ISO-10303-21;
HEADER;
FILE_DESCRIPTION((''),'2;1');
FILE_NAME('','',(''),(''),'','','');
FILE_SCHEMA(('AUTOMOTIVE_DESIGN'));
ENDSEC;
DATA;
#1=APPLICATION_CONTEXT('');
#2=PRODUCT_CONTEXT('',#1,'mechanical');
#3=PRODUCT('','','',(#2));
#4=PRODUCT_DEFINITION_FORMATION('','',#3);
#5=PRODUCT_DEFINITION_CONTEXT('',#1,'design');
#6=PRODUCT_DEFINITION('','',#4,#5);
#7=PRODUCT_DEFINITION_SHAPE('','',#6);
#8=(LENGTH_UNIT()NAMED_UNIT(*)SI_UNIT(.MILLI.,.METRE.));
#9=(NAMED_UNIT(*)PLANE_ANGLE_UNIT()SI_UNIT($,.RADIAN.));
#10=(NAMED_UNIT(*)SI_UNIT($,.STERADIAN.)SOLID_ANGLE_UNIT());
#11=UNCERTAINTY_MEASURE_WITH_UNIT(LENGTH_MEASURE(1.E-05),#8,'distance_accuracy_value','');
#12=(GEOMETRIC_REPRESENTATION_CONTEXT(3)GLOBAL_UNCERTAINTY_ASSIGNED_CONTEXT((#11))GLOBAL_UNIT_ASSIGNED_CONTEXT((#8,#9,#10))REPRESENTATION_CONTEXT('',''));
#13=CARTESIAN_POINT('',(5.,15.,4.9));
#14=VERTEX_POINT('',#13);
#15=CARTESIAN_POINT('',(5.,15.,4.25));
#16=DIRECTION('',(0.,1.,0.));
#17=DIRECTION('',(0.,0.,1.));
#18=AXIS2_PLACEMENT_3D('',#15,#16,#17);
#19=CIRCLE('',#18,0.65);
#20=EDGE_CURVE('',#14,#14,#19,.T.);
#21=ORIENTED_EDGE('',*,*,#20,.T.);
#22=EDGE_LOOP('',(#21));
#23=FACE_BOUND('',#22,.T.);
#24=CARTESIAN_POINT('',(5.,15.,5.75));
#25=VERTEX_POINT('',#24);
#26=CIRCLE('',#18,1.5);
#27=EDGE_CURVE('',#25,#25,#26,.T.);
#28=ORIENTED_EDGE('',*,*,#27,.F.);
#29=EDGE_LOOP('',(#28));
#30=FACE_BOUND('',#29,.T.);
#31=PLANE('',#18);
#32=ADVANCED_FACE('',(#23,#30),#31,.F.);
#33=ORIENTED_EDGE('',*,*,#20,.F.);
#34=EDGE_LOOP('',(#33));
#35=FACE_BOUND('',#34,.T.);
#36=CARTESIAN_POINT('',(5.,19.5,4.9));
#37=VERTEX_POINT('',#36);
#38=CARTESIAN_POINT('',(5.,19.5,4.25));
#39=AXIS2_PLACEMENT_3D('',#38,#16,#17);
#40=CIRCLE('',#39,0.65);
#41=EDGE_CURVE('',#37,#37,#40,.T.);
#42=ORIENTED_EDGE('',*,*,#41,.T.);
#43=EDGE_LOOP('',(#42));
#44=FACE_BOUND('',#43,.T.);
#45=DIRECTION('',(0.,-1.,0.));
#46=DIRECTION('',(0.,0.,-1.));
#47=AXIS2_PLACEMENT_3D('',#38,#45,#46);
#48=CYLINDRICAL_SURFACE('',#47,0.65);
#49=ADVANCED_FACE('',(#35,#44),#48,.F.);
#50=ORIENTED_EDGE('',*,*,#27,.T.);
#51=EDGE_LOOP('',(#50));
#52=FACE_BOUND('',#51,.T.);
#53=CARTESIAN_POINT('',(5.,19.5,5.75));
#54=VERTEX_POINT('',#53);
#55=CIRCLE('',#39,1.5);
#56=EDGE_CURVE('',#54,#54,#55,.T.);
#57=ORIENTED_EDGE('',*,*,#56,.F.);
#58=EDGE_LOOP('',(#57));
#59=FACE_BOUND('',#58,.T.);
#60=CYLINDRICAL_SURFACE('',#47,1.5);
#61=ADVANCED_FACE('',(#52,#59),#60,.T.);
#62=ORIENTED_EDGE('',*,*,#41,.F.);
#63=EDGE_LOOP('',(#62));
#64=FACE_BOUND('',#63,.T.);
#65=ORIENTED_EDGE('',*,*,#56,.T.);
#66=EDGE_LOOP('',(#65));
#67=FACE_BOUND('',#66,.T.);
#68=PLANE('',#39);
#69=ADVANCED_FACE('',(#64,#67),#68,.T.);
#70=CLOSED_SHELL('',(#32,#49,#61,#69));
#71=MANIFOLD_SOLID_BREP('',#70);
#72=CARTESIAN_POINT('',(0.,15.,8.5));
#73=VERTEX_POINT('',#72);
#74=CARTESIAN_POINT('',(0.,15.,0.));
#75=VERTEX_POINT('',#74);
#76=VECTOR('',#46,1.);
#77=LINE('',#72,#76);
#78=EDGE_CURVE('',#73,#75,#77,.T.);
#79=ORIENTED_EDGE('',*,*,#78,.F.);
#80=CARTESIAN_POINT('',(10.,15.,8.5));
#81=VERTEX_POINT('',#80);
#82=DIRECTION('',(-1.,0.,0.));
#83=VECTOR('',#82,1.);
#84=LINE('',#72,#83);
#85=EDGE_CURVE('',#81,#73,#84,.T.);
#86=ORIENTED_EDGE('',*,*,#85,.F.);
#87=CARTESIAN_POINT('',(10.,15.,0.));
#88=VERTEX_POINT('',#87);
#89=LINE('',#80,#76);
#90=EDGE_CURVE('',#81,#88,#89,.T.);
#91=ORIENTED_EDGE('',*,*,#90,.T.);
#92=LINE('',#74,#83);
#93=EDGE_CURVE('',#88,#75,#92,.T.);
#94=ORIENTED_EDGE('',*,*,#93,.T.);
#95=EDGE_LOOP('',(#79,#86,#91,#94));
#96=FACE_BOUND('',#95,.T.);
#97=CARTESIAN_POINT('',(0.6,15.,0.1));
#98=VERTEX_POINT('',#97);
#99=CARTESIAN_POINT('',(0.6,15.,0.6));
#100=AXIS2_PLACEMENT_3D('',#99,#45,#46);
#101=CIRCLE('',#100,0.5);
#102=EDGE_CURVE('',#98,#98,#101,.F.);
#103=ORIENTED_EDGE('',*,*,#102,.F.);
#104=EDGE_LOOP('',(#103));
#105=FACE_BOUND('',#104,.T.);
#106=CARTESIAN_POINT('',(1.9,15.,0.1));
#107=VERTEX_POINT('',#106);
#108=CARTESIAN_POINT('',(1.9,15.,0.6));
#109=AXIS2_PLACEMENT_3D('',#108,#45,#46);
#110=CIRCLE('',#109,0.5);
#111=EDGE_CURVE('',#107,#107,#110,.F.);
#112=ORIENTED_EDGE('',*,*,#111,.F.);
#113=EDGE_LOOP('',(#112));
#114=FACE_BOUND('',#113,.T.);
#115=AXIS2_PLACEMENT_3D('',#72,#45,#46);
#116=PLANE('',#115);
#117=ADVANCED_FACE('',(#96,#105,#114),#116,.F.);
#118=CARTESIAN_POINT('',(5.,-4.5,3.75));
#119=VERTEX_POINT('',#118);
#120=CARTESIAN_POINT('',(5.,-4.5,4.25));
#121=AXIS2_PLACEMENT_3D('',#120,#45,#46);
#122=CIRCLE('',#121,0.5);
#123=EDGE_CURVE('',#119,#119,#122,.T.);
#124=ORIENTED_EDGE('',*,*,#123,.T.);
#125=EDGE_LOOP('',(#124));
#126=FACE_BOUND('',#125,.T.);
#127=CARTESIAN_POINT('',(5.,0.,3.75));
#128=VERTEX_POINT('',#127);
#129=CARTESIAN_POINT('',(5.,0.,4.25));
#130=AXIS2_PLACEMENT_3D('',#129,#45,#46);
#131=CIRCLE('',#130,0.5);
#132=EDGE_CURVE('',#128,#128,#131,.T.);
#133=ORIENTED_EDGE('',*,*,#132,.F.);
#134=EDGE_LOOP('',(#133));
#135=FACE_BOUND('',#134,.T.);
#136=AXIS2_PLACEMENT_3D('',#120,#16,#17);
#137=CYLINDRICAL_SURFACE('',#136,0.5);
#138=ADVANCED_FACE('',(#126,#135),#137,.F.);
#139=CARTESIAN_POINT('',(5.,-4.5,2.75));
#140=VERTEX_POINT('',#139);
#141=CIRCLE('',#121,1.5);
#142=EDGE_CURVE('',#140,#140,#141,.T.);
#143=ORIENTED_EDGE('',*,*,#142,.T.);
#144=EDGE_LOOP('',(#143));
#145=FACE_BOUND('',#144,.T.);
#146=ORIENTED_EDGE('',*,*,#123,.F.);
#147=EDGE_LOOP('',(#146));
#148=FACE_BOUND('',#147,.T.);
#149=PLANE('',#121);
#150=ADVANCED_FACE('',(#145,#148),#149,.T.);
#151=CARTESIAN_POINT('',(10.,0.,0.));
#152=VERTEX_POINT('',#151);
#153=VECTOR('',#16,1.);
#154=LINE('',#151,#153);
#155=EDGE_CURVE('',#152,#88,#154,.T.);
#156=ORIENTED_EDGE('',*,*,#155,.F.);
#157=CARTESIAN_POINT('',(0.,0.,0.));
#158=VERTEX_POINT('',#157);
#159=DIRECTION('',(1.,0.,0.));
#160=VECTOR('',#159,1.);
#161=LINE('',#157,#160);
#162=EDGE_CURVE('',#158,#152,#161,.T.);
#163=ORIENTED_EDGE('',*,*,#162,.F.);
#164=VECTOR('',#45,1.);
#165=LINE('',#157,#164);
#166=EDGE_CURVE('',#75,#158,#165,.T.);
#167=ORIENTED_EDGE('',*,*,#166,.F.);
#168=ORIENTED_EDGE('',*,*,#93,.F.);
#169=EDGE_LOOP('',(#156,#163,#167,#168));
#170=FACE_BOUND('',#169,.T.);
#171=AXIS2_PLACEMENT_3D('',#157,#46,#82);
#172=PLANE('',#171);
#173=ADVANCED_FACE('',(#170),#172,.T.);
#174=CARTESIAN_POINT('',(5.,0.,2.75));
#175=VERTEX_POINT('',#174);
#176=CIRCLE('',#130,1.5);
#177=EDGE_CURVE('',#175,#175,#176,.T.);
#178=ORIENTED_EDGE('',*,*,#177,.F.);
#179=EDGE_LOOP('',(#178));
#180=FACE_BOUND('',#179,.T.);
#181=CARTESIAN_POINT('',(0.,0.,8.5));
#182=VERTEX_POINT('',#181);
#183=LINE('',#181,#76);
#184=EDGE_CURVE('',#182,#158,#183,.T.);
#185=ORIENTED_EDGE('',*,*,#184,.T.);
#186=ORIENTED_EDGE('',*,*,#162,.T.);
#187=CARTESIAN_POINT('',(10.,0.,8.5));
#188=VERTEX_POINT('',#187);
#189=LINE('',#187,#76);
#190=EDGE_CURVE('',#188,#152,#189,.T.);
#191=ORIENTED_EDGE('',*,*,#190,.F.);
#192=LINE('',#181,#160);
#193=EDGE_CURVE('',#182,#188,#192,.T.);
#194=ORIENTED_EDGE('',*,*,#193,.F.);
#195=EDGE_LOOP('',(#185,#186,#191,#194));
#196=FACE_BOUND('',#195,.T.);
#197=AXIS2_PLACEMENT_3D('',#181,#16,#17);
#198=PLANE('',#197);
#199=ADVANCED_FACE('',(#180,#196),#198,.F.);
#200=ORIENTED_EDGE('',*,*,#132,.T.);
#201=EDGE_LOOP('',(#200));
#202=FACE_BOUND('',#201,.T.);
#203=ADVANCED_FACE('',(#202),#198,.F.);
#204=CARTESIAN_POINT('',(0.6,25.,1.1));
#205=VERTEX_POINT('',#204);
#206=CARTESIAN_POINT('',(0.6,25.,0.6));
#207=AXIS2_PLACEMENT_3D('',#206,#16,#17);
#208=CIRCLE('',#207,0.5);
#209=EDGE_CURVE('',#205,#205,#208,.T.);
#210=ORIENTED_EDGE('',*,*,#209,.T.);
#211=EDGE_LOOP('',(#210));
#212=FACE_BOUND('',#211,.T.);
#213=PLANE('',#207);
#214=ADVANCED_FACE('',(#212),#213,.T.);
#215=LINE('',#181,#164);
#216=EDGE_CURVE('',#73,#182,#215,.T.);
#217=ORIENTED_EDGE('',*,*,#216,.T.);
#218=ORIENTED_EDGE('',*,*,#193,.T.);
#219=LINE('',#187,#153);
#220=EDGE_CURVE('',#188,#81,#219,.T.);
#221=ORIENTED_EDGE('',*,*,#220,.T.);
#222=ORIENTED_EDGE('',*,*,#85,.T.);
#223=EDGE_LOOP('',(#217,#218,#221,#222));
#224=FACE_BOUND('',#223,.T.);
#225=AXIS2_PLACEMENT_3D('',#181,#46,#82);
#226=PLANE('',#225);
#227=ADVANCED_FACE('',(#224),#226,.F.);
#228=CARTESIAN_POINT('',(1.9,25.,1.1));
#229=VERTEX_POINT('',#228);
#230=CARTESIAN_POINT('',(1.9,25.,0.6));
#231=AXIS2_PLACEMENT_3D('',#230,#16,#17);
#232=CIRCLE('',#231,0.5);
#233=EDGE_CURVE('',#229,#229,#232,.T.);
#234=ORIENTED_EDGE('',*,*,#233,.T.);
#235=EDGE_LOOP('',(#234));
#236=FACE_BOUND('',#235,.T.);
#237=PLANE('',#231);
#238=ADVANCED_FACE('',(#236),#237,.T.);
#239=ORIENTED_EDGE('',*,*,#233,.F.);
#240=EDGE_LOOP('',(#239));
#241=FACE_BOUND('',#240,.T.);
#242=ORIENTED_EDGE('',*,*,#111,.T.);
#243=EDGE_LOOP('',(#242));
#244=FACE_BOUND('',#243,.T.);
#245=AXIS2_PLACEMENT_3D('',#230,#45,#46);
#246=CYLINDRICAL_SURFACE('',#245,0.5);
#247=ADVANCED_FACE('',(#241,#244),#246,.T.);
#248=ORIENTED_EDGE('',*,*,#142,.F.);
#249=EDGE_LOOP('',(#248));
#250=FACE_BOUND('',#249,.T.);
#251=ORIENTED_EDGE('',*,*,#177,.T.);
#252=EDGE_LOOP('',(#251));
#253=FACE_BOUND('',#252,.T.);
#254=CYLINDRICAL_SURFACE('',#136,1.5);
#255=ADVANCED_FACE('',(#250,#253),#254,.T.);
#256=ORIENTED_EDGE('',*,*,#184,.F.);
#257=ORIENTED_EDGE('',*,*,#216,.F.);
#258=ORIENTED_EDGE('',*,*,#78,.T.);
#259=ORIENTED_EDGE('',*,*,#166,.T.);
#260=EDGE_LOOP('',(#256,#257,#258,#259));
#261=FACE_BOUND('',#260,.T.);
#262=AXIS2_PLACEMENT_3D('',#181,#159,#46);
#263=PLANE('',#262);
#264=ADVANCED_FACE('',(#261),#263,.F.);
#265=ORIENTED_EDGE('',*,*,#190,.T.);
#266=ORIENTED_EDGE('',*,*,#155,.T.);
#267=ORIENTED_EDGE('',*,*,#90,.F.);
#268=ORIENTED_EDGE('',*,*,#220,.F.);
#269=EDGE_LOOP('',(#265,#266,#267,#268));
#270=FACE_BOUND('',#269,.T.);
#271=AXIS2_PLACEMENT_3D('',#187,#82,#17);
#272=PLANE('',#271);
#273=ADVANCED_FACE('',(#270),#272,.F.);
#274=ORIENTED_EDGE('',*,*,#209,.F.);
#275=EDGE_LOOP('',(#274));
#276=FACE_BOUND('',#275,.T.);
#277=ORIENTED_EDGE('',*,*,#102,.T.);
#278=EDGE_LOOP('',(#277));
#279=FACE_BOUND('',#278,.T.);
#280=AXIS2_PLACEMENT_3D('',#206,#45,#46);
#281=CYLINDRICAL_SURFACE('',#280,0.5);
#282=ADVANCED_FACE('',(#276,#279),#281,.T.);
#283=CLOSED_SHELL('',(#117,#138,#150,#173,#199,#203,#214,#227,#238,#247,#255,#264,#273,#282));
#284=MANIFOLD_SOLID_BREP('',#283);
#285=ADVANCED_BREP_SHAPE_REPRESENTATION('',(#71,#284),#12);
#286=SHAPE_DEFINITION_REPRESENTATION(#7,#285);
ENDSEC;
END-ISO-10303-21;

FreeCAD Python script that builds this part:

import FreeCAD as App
import Part
import Sketcher

doc = App.newDocument("Part")
params = doc.addObject("Spreadsheet::Sheet", "Params")
for row, (alias, value) in enumerate([
    ("sketch1_width", "10 mm"),
    ("sketch1_height", "15 mm"),
    ("pad1_length", "8.5 mm"),
    ("sketch2_diameter", "3 mm"),
    ("sketch2_diameter2", "1 mm"),
    ("pad2_length", "4.5 mm"),
    ("sketch3_diameter", "1 mm"),
    ("pad3_length", "10 mm"),
    ("sketch4_diameter", "3 mm"),
    ("sketch4_diameter2", "1.3 mm"),
    ("pad4_length", "4.5 mm"),
], start=1):
    params.set(f"A{row}", alias)
    params.set(f"B{row}", "=" + value)
    params.setAlias(f"B{row}", alias)

body = doc.addObject("PartDesign::Body", "Body")

# Sketch on XY plane
sketch1 = body.newObject("Sketcher::SketchObject", "Sketch")
sketch1.AttachmentSupport = (doc.getObject("XY_Plane"), [""])
sketch1.MapMode = "FlatFace"
sketch1.addGeometry([
    Part.LineSegment(App.Vector(0, 15, 0), App.Vector(0, 0, 0)),
    Part.LineSegment(App.Vector(0, 0, 0), App.Vector(10, 0, 0)),
    Part.LineSegment(App.Vector(10, 0, 0), App.Vector(10, 15, 0)),
    Part.LineSegment(App.Vector(10, 15, 0), App.Vector(0, 15, 0)),
], False)
sketch1.addConstraint([
    Sketcher.Constraint("Coincident", 0, 2, 1, 1),
    Sketcher.Constraint("Coincident", 1, 2, 2, 1),
    Sketcher.Constraint("Coincident", 2, 2, 3, 1),
    Sketcher.Constraint("Coincident", 3, 2, 0, 1),
    Sketcher.Constraint("Vertical", 0),
    Sketcher.Constraint("Horizontal", 1),
    Sketcher.Constraint("Vertical", 2),
    Sketcher.Constraint("Horizontal", 3),
    Sketcher.Constraint("Coincident", 0, 2, -1, 1),
    Sketcher.Constraint("DistanceX", 1, 1, 1, 2, 10.0),
    Sketcher.Constraint("DistanceY", 0, 2, 0, 1, 15.0),
])
sketch1.setExpression("Constraints[9]", "Params.sketch1_width")
sketch1.setExpression("Constraints[10]", "Params.sketch1_height")
pad1 = body.newObject("PartDesign::Pad", "Pad")
pad1.Profile = sketch1
pad1.setExpression("Length", "Params.pad1_length")

# Sketch on XZ plane
sketch2 = body.newObject("Sketcher::SketchObject", "Sketch001")
sketch2.AttachmentSupport = (doc.getObject("XZ_Plane"), [""])
sketch2.MapMode = "FlatFace"
sketch2.addGeometry([
    Part.Circle(App.Vector(5, 4.2, 0), App.Vector(0, 0, 1), 1.5),
    Part.Circle(App.Vector(5, 4.2, 0), App.Vector(0, 0, 1), 0.5),
], False)
sketch2.addConstraint([
    Sketcher.Constraint("Coincident", 1, 3, 0, 3),
    Sketcher.Constraint("Diameter", 0, 3.0),
    Sketcher.Constraint("Diameter", 1, 1.0),
    Sketcher.Constraint("DistanceX", -1, 1, 0, 3, 5.0),
    Sketcher.Constraint("DistanceY", -1, 1, 0, 3, 4.25),
])
sketch2.setExpression("Constraints[1]", "Params.sketch2_diameter")
sketch2.setExpression("Constraints[2]", "Params.sketch2_diameter2")
pad2 = body.newObject("PartDesign::Pad", "Pad001")
pad2.Profile = sketch2
pad2.setExpression("Length", "Params.pad2_length")

# Sketch on XZ plane
sketch3 = body.newObject("Sketcher::SketchObject", "Sketch002")
sketch3.AttachmentSupport = (doc.getObject("XZ_Plane"), [""])
sketch3.MapMode = "FlatFace"
sketch3.AttachmentOffset = App.Placement(App.Vector(0, 0, -15), App.Rotation())
sketch3.addGeometry([
    Part.Circle(App.Vector(0.6, 0.6, 0), App.Vector(0, 0, 1), 0.5),
    Part.Circle(App.Vector(1.9, 0.6, 0), App.Vector(0, 0, 1), 0.5),
], False)
sketch3.addConstraint([
    Sketcher.Constraint("Equal", 0, 1),
    Sketcher.Constraint("Horizontal", 0, 3, 1, 3),
    Sketcher.Constraint("Diameter", 0, 1.0),
    Sketcher.Constraint("DistanceX", -1, 1, 0, 3, 0.6),
    Sketcher.Constraint("DistanceY", -1, 1, 0, 3, 0.6),
    Sketcher.Constraint("DistanceX", -1, 1, 1, 3, 1.9),
])
sketch3.setExpression("Constraints[2]", "Params.sketch3_diameter")
pad3 = body.newObject("PartDesign::Pad", "Pad002")
pad3.Profile = sketch3
pad3.setExpression("Length", "Params.pad3_length")
pad3.Reversed = True
body2 = doc.addObject("PartDesign::Body", "Body001")

# Sketch on XZ plane
sketch4 = body2.newObject("Sketcher::SketchObject", "Sketch003")
sketch4.AttachmentSupport = (doc.getObject("XZ_Plane001"), [""])
sketch4.MapMode = "FlatFace"
sketch4.AttachmentOffset = App.Placement(App.Vector(0, 0, -15), App.Rotation())
sketch4.addGeometry([
    Part.Circle(App.Vector(5, 4.2, 0), App.Vector(0, 0, 1), 1.5),
    Part.Circle(App.Vector(5, 4.2, 0), App.Vector(0, 0, 1), 0.7),
], False)
sketch4.addConstraint([
    Sketcher.Constraint("Coincident", 1, 3, 0, 3),
    Sketcher.Constraint("Diameter", 0, 3.0),
    Sketcher.Constraint("Diameter", 1, 1.3),
    Sketcher.Constraint("DistanceX", -1, 1, 0, 3, 5.0),
    Sketcher.Constraint("DistanceY", -1, 1, 0, 3, 4.25),
])
sketch4.setExpression("Constraints[1]", "Params.sketch4_diameter")
sketch4.setExpression("Constraints[2]", "Params.sketch4_diameter2")
pad4 = body2.newObject("PartDesign::Pad", "Pad003")
pad4.Profile = sketch4
pad4.setExpression("Length", "Params.pad4_length")
pad4.Reversed = True

doc.recompute()
